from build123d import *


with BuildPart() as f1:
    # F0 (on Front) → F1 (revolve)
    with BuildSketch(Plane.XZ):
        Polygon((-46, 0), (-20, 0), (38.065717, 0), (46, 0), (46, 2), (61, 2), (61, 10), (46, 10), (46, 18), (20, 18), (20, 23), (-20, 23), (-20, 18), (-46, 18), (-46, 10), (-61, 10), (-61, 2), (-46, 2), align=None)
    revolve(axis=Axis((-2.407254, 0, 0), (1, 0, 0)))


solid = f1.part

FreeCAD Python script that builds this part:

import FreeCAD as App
import Part
import Sketcher
from FreeCAD import Vector


def add_polygon(sketch, points):
    """Adds a closed chain of lines whose ends are joined by coincident constraints."""
    first, n = sketch.GeometryCount, len(points)
    for a, b in zip(points, points[1:] + points[:1]):
        sketch.addGeometry(Part.LineSegment(App.Vector(*a, 0), App.Vector(*b, 0)), False)
    for i in range(n):
        sketch.addConstraint(Sketcher.Constraint("Coincident", first + i, 2, first + (i + 1) % n, 1))

doc = App.newDocument("Part")
body = doc.addObject("PartDesign::Body", "Body")

sketch1 = body.newObject("Sketcher::SketchObject", "Sketch")
sketch1.AttachmentSupport = (doc.getObject("XZ_Plane"), [""])
sketch1.MapMode = "FlatFace"
add_polygon(sketch1, [(-46, 0), (46, 0), (46, 2), (61, 2), (61, 10), (46, 10), (46, 18), (20, 18), (20, 23), (-20, 23), (-20, 18), (-46, 18), (-46, 10), (-61, 10), (-61, 2), (-46, 2)])
sketch1.addConstraint([
    Sketcher.Constraint("Horizontal", 0),
    Sketcher.Constraint("Vertical", 1),
    Sketcher.Constraint("Horizontal", 2),
    Sketcher.Constraint("Vertical", 3),
    Sketcher.Constraint("Horizontal", 4),
    Sketcher.Constraint("Vertical", 5),
    Sketcher.Constraint("Horizontal", 6),
    Sketcher.Constraint("Vertical", 7),
    Sketcher.Constraint("Horizontal", 8),
    Sketcher.Constraint("Vertical", 9),
    Sketcher.Constraint("Horizontal", 10),
    Sketcher.Constraint("Vertical", 11),
    Sketcher.Constraint("Horizontal", 12),
    Sketcher.Constraint("Vertical", 13),
    Sketcher.Constraint("Horizontal", 14),
    Sketcher.Constraint("Vertical", 15),
    Sketcher.Constraint("Symmetric", 0, 2, 15, 2, -1, 1),
    Sketcher.Constraint("Symmetric", 6, 2, 9, 2, -2),
    Sketcher.Constraint("Symmetric", 4, 2, 11, 2, -2),
    Sketcher.Constraint("Symmetric", 2, 2, 13, 2, -2),
    Sketcher.Constraint("Vertical", 1, 2, 4, 2),
    Sketcher.Constraint("Equal", 3, 5),
    Sketcher.Constraint("DistanceX", 0, 1, 0, 2, 92.0),
    Sketcher.Constraint("DistanceX", 2, 1, 2, 2, 15.0),
    Sketcher.Constraint("DistanceX", 6, 2, 6, 1, 26.0),
    Sketcher.Constraint("DistanceY", 1, 1, 1, 2, 2.0),
    Sketcher.Constraint("DistanceY", 3, 1, 3, 2, 8.0),
    Sketcher.Constraint("DistanceY", 7, 1, 7, 2, 5.0),
])
revolution = body.newObject("PartDesign::Revolution", "Revolution")
revolution.Profile = sketch1
revolution.ReferenceAxis = (sketch1, ["H_Axis"])
revolution.Angle = 360

doc.recompute()
